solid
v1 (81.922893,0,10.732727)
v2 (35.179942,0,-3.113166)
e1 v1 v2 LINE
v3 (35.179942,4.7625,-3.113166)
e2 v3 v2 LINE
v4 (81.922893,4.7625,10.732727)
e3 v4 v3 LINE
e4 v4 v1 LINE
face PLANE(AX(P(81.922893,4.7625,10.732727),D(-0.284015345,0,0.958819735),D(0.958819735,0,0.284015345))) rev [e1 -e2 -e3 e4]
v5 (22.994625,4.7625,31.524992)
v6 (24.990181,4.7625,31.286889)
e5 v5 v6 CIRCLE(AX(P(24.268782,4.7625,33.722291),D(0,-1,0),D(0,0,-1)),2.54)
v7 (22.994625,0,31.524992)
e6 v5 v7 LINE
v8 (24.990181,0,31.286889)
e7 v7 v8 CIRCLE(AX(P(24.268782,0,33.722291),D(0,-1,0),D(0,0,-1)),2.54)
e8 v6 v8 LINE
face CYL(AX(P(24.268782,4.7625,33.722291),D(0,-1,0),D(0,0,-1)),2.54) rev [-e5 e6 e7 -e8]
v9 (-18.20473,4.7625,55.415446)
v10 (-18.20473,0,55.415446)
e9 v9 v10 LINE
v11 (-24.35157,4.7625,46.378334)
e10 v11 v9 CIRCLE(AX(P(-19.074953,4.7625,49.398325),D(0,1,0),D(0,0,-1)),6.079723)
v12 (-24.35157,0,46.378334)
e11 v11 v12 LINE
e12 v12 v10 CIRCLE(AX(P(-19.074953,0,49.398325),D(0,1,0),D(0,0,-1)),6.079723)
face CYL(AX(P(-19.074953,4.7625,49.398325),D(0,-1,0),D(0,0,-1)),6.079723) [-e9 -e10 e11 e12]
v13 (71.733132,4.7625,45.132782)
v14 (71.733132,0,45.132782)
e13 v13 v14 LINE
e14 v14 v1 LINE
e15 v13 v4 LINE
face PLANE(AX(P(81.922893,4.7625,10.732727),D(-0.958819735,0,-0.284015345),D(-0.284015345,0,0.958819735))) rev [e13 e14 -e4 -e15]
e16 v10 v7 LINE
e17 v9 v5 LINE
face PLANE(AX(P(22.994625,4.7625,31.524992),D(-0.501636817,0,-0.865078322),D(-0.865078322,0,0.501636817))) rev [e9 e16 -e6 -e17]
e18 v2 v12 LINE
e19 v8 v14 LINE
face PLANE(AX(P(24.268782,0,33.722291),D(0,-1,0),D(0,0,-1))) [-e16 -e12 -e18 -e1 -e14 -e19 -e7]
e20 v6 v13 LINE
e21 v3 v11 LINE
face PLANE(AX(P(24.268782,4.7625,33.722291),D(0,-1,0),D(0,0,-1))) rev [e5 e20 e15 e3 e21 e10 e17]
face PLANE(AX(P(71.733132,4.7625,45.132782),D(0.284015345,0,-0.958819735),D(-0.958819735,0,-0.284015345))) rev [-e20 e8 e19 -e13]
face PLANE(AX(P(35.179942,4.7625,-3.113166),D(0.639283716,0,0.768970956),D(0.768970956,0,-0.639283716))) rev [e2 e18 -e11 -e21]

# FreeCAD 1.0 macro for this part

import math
import FreeCAD as App
import Part
import Sketcher
Q = App.Units.Quantity

doc = App.newDocument("Part")
body = doc.addObject("PartDesign::Body", "Body")

sketch1 = doc.addObject("Sketcher::SketchObject", "Sketch")
body.addObject(sketch1)
sketch1.AttachmentSupport = (doc.XZ_Plane, [""])
sketch1.MapMode = "FlatFace"
sketch1.addGeometry([
    Part.LineSegment(App.Vector(-18.2, 55.4, 0), App.Vector(23, 31.5, 0)),
    Part.ArcOfCircle(Part.Circle(App.Vector(24.3, 33.7, 0), App.Vector(0, 0, 1), 2.5), math.radians(-120), math.radians(-74)),
    Part.LineSegment(App.Vector(25, 31.3, 0), App.Vector(71.7, 45.1, 0)),
    Part.LineSegment(App.Vector(71.7, 45.1, 0), App.Vector(81.9, 10.7, 0)),
    Part.LineSegment(App.Vector(81.9, 10.7, 0), App.Vector(35.2, -3.1, 0)),
    Part.LineSegment(App.Vector(35.2, -3.1, 0), App.Vector(-24.4, 46.4, 0)),
    Part.ArcOfCircle(Part.Circle(App.Vector(-19.1, 49.4, 0), App.Vector(0, 0, 1), 6.1), math.radians(82), math.radians(210)),
], False)
sketch1.addConstraint([
    Sketcher.Constraint("Tangent", 0, 2, 1, 1),
    Sketcher.Constraint("Tangent", 1, 2, 2, 1),
    Sketcher.Constraint("Coincident", 2, 2, 3, 1),
    Sketcher.Constraint("Coincident", 3, 2, 4, 1),
    Sketcher.Constraint("Coincident", 4, 2, 5, 1),
    Sketcher.Constraint("Coincident", 5, 2, 6, 2),
    Sketcher.Constraint("Coincident", 6, 1, 0, 1),
    Sketcher.Constraint("Perpendicular", 2, 3),
    Sketcher.Constraint("Perpendicular", 3, 4),
    Sketcher.Constraint("Equal", 2, 4),
    Sketcher.Constraint("Radius", 1, Q("0.1 in")),
    Sketcher.Constraint("Angle", 2, Q("16.5 deg")),
    Sketcher.Constraint("Distance", 0, Q("1.875 in")),
    Sketcher.Constraint("Distance", 3, Q("1.4125 in")),
    Sketcher.Constraint("DistanceX", -1, 1, 0, 2, Q("0.9053002 in")),
    Sketcher.Constraint("Radius", 6, Q("6.079723 mm")),
    Sketcher.Constraint("DistanceY", 0, 2, 1, 3, Q("2.197299 mm")),
    Sketcher.Constraint("DistanceY", 3, 2, 6, 3, Q("38.665598 mm")),
    Sketcher.Constraint("DistanceY", 4, 2, 5, 2, Q("49.4915 mm")),
    Sketcher.Constraint("Distance", 2, Q("48.75051 mm")),
    Sketcher.Constraint("DistanceY", -1, 1, 1, 3, Q("33.722291 mm")),
])
pad1 = doc.addObject("PartDesign::Pad", "Pad")
body.addObject(pad1)
pad1.Profile = sketch1
pad1.Length = Q("0.1875 in")
pad1.Reversed = True

doc.recompute()
